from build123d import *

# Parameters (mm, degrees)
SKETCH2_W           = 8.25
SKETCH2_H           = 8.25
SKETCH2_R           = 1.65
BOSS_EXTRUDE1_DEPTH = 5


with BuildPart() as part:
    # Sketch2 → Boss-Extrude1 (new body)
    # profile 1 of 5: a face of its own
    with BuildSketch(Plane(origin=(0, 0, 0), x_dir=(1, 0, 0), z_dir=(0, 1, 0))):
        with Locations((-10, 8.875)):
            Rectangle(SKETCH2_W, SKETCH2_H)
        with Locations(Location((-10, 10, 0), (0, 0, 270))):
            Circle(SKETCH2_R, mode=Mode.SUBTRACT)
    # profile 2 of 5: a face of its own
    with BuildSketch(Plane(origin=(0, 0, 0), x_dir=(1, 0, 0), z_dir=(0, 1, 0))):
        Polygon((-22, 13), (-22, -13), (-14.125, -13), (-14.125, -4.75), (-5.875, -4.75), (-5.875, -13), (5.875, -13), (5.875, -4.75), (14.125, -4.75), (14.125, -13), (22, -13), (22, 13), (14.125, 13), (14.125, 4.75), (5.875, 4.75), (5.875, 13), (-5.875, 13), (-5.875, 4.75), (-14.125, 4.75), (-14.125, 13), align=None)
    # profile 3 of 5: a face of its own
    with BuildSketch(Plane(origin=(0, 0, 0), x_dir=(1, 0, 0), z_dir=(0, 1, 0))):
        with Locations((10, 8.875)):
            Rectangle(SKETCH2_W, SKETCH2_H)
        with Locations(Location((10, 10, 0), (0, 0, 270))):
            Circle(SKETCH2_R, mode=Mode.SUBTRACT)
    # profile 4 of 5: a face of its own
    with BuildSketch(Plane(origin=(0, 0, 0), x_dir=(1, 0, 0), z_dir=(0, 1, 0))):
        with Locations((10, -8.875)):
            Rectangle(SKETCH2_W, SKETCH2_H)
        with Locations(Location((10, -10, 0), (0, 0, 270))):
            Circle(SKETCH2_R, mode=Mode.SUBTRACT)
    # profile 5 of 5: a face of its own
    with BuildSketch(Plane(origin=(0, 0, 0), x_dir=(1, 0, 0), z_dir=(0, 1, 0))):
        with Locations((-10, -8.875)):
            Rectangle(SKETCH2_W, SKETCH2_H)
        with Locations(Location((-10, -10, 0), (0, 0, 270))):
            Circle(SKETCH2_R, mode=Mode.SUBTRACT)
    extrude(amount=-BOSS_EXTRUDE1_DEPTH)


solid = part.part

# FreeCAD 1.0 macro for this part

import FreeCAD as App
import Part
import Sketcher
from FreeCAD import Vector
Q = App.Units.Quantity


def add_polygon(sketch, points):
    """Adds a closed chain of lines whose ends are joined by coincident constraints."""
    first, n = sketch.GeometryCount, len(points)
    for a, b in zip(points, points[1:] + points[:1]):
        sketch.addGeometry(Part.LineSegment(App.Vector(*a, 0), App.Vector(*b, 0)), False)
    for i in range(n):
        sketch.addConstraint(Sketcher.Constraint("Coincident", first + i, 2, first + (i + 1) % n, 1))

doc = App.newDocument("Part")
body = doc.addObject("PartDesign::Body", "Body")

sketch1 = body.newObject("Sketcher::SketchObject", "Sketch")
sketch1.AttachmentSupport = (doc.getObject("XZ_Plane"), [""])
sketch1.MapMode = "FlatFace"
add_polygon(sketch1, [(-22, -13), (-22, 13), (22, 13), (22, -13)])
sketch1.addGeometry(Part.Circle(Vector(-10, -10, 0), Vector(0, 0, 1), 1.6), False)
sketch1.addGeometry(Part.Circle(Vector(-10, 10, 0), Vector(0, 0, 1), 1.6), False)
sketch1.addGeometry(Part.Circle(Vector(10, 10, 0), Vector(0, 0, 1), 1.6), False)
sketch1.addGeometry(Part.Circle(Vector(10, -10, 0), Vector(0, 0, 1), 1.6), False)
sketch1.addConstraint([
    Sketcher.Constraint("Vertical", 0),
    Sketcher.Constraint("Horizontal", 1),
    Sketcher.Constraint("Vertical", 2),
    Sketcher.Constraint("Horizontal", 3),
    Sketcher.Constraint("Equal", 4, 5),
    Sketcher.Constraint("Equal", 5, 6),
    Sketcher.Constraint("Equal", 6, 7),
    Sketcher.Constraint("Symmetric", 4, 3, 6, 3, -1, 1),
    Sketcher.Constraint("Symmetric", 5, 3, 7, 3, -1, 1),
    Sketcher.Constraint("Symmetric", 0, 2, 2, 2, -1, 1),
    Sketcher.Constraint("Symmetric", 5, 3, 6, 3, -2),
    Sketcher.Constraint("Diameter", 4, Q("3.3 mm")),
    Sketcher.Constraint("DistanceX", 1, 1, 1, 2, Q("44 mm")),
    Sketcher.Constraint("DistanceY", 0, 1, 0, 2, Q("26 mm")),
    Sketcher.Constraint("DistanceX", 4, 3, -1, 1, Q("10 mm")),
    Sketcher.Constraint("DistanceY", 4, 3, -1, 1, Q("10 mm")),
])
pad1 = body.newObject("PartDesign::Pad", "Pad")
pad1.Profile = sketch1
pad1.Length = 5

doc.recompute()
